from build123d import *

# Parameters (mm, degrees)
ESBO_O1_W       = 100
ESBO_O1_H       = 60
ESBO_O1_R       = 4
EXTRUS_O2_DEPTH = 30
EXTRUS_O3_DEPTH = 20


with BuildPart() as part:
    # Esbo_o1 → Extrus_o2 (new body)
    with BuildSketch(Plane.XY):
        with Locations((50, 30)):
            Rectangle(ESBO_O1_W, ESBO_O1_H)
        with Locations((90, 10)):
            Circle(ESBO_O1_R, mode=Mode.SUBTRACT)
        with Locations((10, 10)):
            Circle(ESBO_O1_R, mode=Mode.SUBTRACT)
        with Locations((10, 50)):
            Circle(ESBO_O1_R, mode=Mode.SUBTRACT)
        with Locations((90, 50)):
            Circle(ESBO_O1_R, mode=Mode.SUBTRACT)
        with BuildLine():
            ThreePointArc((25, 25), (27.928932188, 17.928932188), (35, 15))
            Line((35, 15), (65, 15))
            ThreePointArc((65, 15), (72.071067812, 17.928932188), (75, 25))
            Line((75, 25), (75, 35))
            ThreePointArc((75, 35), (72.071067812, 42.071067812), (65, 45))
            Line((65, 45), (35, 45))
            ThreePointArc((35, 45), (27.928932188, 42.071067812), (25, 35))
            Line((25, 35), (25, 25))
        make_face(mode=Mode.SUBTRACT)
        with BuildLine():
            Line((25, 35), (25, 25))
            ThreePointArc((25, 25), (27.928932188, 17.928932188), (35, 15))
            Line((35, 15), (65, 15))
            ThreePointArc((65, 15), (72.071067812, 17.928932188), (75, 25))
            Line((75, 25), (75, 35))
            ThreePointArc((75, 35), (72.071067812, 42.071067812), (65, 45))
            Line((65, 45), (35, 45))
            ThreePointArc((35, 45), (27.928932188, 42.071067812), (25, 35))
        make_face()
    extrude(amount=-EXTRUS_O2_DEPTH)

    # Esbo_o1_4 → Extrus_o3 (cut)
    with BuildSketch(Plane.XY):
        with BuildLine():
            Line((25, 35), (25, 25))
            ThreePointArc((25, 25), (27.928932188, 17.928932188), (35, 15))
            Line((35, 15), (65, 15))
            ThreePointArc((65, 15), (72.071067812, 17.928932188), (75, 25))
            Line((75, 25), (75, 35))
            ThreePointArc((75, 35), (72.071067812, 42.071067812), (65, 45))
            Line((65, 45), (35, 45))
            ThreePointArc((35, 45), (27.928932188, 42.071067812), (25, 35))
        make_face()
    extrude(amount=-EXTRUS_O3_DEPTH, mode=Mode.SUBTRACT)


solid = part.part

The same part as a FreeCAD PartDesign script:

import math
import FreeCAD as App
import Part
import Sketcher
from FreeCAD import Vector

doc = App.newDocument("Part")
body = doc.addObject("PartDesign::Body", "Body")

sketch1 = body.newObject("Sketcher::SketchObject", "Sketch")
sketch1.AttachmentSupport = (doc.getObject("XY_Plane"), [""])
sketch1.MapMode = "FlatFace"
sketch1.addGeometry(Part.LineSegment(Vector(0, 60, 0), Vector(0, 0, 0)), False)
sketch1.addGeometry(Part.LineSegment(Vector(0, 0, 0), Vector(100, 0, 0)), False)
sketch1.addGeometry(Part.LineSegment(Vector(100, 0, 0), Vector(100, 60, 0)), False)
sketch1.addGeometry(Part.LineSegment(Vector(100, 60, 0), Vector(0, 60, 0)), False)
sketch1.addGeometry(Part.Circle(Vector(10, 10, 0), Vector(0, 0, 1), 4), False)
sketch1.addGeometry(Part.Circle(Vector(90, 10, 0), Vector(0, 0, 1), 4), False)
sketch1.addGeometry(Part.Circle(Vector(10, 50, 0), Vector(0, 0, 1), 4), False)
sketch1.addGeometry(Part.Circle(Vector(90, 50, 0), Vector(0, 0, 1), 4), False)
sketch1.addConstraint(Sketcher.Constraint("Coincident", 0, 2, 1, 1))
sketch1.addConstraint(Sketcher.Constraint("Coincident", 1, 2, 2, 1))
sketch1.addConstraint(Sketcher.Constraint("Coincident", 2, 2, 3, 1))
sketch1.addConstraint(Sketcher.Constraint("Coincident", 3, 2, 0, 1))
sketch1.addConstraint(Sketcher.Constraint("Vertical", 0))
sketch1.addConstraint(Sketcher.Constraint("Horizontal", 1))
sketch1.addConstraint(Sketcher.Constraint("Vertical", 2))
sketch1.addConstraint(Sketcher.Constraint("Horizontal", 3))
sketch1.addConstraint(Sketcher.Constraint("Coincident", 0, 2, -1, 1))
sketch1.addConstraint(Sketcher.Constraint("Equal", 4, 5))
sketch1.addConstraint(Sketcher.Constraint("Equal", 5, 6))
sketch1.addConstraint(Sketcher.Constraint("Equal", 6, 7))
sketch1.addConstraint(Sketcher.Constraint("Horizontal", 4, 3, 5, 3))
sketch1.addConstraint(Sketcher.Constraint("Horizontal", 6, 3, 7, 3))
sketch1.addConstraint(Sketcher.Constraint("Vertical", 4, 3, 6, 3))
sketch1.addConstraint(Sketcher.Constraint("Vertical", 5, 3, 7, 3))
sketch1.addConstraint(Sketcher.Constraint("Diameter", 4, 8.0))
sketch1.addConstraint(Sketcher.Constraint("DistanceX", 1, 1, 1, 2, 100.0))
sketch1.addConstraint(Sketcher.Constraint("DistanceY", 0, 2, 0, 1, 60.0))
sketch1.addConstraint(Sketcher.Constraint("DistanceX", -1, 1, 4, 3, 10.0))
sketch1.addConstraint(Sketcher.Constraint("DistanceY", -1, 1, 4, 3, 10.0))
sketch1.addConstraint(Sketcher.Constraint("DistanceX", -1, 1, 5, 3, 90.0))
sketch1.addConstraint(Sketcher.Constraint("DistanceY", -1, 1, 6, 3, 50.0))
pad1 = body.newObject("PartDesign::Pad", "Pad")
pad1.Profile = sketch1
pad1.Length = 30
pad1.Reversed = True

sketch2 = body.newObject("Sketcher::SketchObject", "Sketch001")
sketch2.AttachmentSupport = (doc.getObject("XY_Plane"), [""])
sketch2.MapMode = "FlatFace"
sketch2.addGeometry(Part.LineSegment(Vector(25, 35, 0), Vector(25, 25, 0)), False)
sketch2.addGeometry(Part.ArcOfCircle(Part.Circle(Vector(35, 25, 0), Vector(0, 0, 1), 10), math.radians(180), math.radians(270)), False)
sketch2.addGeometry(Part.LineSegment(Vector(35, 15, 0), Vector(65, 15, 0)), False)
sketch2.addGeometry(Part.ArcOfCircle(Part.Circle(Vector(65, 25, 0), Vector(0, 0, 1), 10), math.radians(-90), math.radians(0)), False)
sketch2.addGeometry(Part.LineSegment(Vector(75, 25, 0), Vector(75, 35, 0)), False)
sketch2.addGeometry(Part.ArcOfCircle(Part.Circle(Vector(65, 35, 0), Vector(0, 0, 1), 10), math.radians(0), math.radians(90)), False)
sketch2.addGeometry(Part.LineSegment(Vector(65, 45, 0), Vector(35, 45, 0)), False)
sketch2.addGeometry(Part.ArcOfCircle(Part.Circle(Vector(35, 35, 0), Vector(0, 0, 1), 10), math.radians(90), math.radians(180)), False)
sketch2.addConstraint(Sketcher.Constraint("Tangent", 0, 2, 1, 1))
sketch2.addConstraint(Sketcher.Constraint("Tangent", 1, 2, 2, 1))
sketch2.addConstraint(Sketcher.Constraint("Tangent", 2, 2, 3, 1))
sketch2.addConstraint(Sketcher.Constraint("Tangent", 3, 2, 4, 1))
sketch2.addConstraint(Sketcher.Constraint("Tangent", 4, 2, 5, 1))
sketch2.addConstraint(Sketcher.Constraint("Tangent", 5, 2, 6, 1))
sketch2.addConstraint(Sketcher.Constraint("Tangent", 6, 2, 7, 1))
sketch2.addConstraint(Sketcher.Constraint("Tangent", 7, 2, 0, 1))
sketch2.addConstraint(Sketcher.Constraint("Vertical", 0))
sketch2.addConstraint(Sketcher.Constraint("Horizontal", 2))
sketch2.addConstraint(Sketcher.Constraint("Vertical", 4))
sketch2.addConstraint(Sketcher.Constraint("Horizontal", 6))
sketch2.addConstraint(Sketcher.Constraint("Equal", 1, 3))
sketch2.addConstraint(Sketcher.Constraint("Equal", 3, 5))
sketch2.addConstraint(Sketcher.Constraint("Equal", 5, 7))
sketch2.addConstraint(Sketcher.Constraint("Radius", 1, 10.0))
sketch2.addConstraint(Sketcher.Constraint("DistanceX", 2, 1, 2, 2, 30.0))
sketch2.addConstraint(Sketcher.Constraint("DistanceY", 0, 2, 0, 1, 10.0))
sketch2.addConstraint(Sketcher.Constraint("DistanceX", -1, 1, 1, 3, 35.0))
sketch2.addConstraint(Sketcher.Constraint("DistanceY", -1, 1, 1, 3, 25.0))
pocket1 = body.newObject("PartDesign::Pocket", "Pocket")
pocket1.Profile = sketch2
pocket1.Length = 20

doc.recompute()
